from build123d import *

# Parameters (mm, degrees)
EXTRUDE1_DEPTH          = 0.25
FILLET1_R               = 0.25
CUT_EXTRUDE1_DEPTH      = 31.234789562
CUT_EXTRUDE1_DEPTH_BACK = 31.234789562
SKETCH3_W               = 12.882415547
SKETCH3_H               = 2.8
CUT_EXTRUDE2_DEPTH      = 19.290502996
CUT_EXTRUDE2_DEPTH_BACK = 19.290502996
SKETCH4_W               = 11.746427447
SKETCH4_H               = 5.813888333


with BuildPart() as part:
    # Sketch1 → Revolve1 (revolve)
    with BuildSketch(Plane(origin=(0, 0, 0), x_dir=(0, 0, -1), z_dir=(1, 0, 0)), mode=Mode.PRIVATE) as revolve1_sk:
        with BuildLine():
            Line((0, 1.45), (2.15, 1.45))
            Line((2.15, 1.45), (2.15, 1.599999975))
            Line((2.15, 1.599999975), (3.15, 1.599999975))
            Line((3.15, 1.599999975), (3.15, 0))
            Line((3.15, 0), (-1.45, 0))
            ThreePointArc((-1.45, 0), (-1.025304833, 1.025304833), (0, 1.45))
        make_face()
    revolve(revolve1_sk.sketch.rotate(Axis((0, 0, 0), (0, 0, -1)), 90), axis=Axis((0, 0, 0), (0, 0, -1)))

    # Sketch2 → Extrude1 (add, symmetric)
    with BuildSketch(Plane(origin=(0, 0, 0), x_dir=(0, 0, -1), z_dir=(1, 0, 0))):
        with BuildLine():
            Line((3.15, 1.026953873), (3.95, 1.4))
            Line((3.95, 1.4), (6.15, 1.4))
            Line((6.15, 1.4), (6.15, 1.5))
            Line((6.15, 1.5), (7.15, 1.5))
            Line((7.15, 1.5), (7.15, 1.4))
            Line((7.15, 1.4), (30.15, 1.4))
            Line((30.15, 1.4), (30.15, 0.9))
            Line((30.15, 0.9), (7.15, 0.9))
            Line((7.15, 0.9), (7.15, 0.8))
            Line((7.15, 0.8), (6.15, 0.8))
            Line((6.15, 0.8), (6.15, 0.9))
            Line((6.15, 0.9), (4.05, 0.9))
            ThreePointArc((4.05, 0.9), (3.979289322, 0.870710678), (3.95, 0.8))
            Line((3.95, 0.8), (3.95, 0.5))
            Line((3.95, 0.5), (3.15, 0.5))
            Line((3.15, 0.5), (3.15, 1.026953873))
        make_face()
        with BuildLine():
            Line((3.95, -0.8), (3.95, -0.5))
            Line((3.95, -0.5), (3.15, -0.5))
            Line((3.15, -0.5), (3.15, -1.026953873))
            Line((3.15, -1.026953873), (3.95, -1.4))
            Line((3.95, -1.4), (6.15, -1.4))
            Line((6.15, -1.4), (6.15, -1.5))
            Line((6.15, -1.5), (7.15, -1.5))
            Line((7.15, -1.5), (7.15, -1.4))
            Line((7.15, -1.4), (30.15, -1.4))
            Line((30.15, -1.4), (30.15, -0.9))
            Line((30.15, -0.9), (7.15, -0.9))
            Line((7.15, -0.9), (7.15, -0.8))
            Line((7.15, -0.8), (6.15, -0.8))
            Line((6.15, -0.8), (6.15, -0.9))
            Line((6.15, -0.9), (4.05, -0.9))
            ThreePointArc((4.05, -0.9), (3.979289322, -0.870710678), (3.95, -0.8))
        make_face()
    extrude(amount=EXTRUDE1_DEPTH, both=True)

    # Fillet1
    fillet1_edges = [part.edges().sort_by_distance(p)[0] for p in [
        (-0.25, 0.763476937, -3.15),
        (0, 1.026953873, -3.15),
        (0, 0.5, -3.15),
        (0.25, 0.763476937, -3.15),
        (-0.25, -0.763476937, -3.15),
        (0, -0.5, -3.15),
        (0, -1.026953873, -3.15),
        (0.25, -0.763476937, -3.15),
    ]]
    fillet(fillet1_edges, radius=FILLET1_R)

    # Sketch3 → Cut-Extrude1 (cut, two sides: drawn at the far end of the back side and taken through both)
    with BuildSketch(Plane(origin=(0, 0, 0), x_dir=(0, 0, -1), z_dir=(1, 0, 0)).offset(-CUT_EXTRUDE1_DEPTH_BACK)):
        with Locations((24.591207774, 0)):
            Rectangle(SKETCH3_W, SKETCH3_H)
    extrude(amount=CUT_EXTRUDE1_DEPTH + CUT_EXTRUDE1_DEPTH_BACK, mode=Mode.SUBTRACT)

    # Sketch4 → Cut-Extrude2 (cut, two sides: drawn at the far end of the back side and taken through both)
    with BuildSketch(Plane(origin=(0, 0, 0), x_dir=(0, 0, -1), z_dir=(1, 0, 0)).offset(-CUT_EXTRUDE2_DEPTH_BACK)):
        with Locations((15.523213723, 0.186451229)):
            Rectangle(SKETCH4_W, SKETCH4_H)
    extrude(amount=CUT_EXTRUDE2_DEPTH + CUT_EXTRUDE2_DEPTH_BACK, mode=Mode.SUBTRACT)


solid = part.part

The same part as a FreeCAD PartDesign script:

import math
import FreeCAD as App
import Part
import Sketcher
from FreeCAD import Vector
Q = App.Units.Quantity


def edges_at(feature, points):
    """Names of the edges that pass closest to the given points."""
    edges = feature.Shape.Edges
    near = lambda p: min(range(len(edges)), key=lambda i: edges[i].distToShape(Part.Vertex(*p))[0])
    return sorted({f"Edge{near(p) + 1}" for p in points})


def add_polygon(sketch, points):
    """Adds a closed chain of lines whose ends are joined by coincident constraints."""
    first, n = sketch.GeometryCount, len(points)
    for a, b in zip(points, points[1:] + points[:1]):
        sketch.addGeometry(Part.LineSegment(App.Vector(*a, 0), App.Vector(*b, 0)), False)
    for i in range(n):
        sketch.addConstraint(Sketcher.Constraint("Coincident", first + i, 2, first + (i + 1) % n, 1))

doc = App.newDocument("Part")
body = doc.addObject("PartDesign::Body", "Body")

# Sketch on YZ plane
sketch1 = body.newObject("Sketcher::SketchObject", "Sketch")
sketch1.AttachmentSupport = (doc.getObject("YZ_Plane"), [""])
sketch1.MapMode = "FlatFace"
sketch1.addGeometry([
    Part.LineSegment(Vector(1.45, -2.15, 0), Vector(1.45, 0, 0)),  # 0
    Part.ArcOfCircle(Part.Circle(Vector(0, 0, 0), Vector(0, 0, 1), 1.45), math.radians(0), math.radians(90)),  # 1
    Part.LineSegment(Vector(0, 1.45, 0), Vector(0, -3.15, 0)),  # 2
    Part.LineSegment(Vector(0, -3.15, 0), Vector(1.6, -3.15, 0)),  # 3
    Part.LineSegment(Vector(1.6, -3.15, 0), Vector(1.6, -2.15, 0)),  # 4
    Part.LineSegment(Vector(1.6, -2.15, 0), Vector(1.45, -2.15, 0)),  # 5
], False)
sketch1.addConstraint([
    Sketcher.Constraint("Tangent", 0, 2, 1, 1),
    Sketcher.Constraint("Coincident", 1, 2, 2, 1),
    Sketcher.Constraint("Coincident", 2, 2, 3, 1),
    Sketcher.Constraint("Coincident", 3, 2, 4, 1),
    Sketcher.Constraint("Coincident", 4, 2, 5, 1),
    Sketcher.Constraint("Coincident", 5, 2, 0, 1),
    Sketcher.Constraint("Vertical", 0),
    Sketcher.Constraint("Vertical", 2),
    Sketcher.Constraint("Horizontal", 3),
    Sketcher.Constraint("Vertical", 4),
    Sketcher.Constraint("Horizontal", 5),
    Sketcher.Constraint("Coincident", 1, 3, -1, 1),
    Sketcher.Constraint("PointOnObject", 1, 2, -2),
    Sketcher.Constraint("DistanceY", 4, 1, 4, 2, Q("1 mm")),
    Sketcher.Constraint("Radius", 1, Q("1.45 mm")),
    Sketcher.Constraint("DistanceX", 3, 1, 3, 2, Q("1.6 mm")),
    Sketcher.Constraint("DistanceY", 2, 2, 2, 1, Q("4.6 mm")),
])
revolution = body.newObject("PartDesign::Revolution", "Revolution")
revolution.Profile = sketch1
revolution.ReferenceAxis = (sketch1, ["V_Axis"])
revolution.Angle = 360

# Sketch on YZ plane
sketch2 = body.newObject("Sketcher::SketchObject", "Sketch001")
sketch2.AttachmentSupport = (doc.getObject("YZ_Plane"), [""])
sketch2.MapMode = "FlatFace"
sketch2.addGeometry([
    Part.LineSegment(Vector(1.4, -3.95, 0), Vector(1.03, -3.15, 0)),  # 0
    Part.LineSegment(Vector(1.03, -3.15, 0), Vector(0.5, -3.15, 0)),  # 1
    Part.LineSegment(Vector(0.5, -3.15, 0), Vector(0.5, -3.95, 0)),  # 2
    Part.LineSegment(Vector(0.5, -3.95, 0), Vector(0.8, -3.95, 0)),  # 3
    Part.ArcOfCircle(Part.Circle(Vector(0.8, -4.05, 0), Vector(0, 0, 1), 0.1), math.radians(0), math.radians(90)),  # 4
    Part.LineSegment(Vector(0.9, -4.05, 0), Vector(0.9, -6.15, 0)),  # 5
    Part.LineSegment(Vector(0.9, -6.15, 0), Vector(0.8, -6.15, 0)),  # 6
    Part.LineSegment(Vector(0.8, -6.15, 0), Vector(0.8, -7.15, 0)),  # 7
    Part.LineSegment(Vector(0.8, -7.15, 0), Vector(0.9, -7.15, 0)),  # 8
    Part.LineSegment(Vector(0.9, -7.15, 0), Vector(0.9, -30.15, 0)),  # 9
    Part.LineSegment(Vector(0.9, -30.15, 0), Vector(1.4, -30.15, 0)),  # 10
    Part.LineSegment(Vector(1.4, -30.15, 0), Vector(1.4, -7.15, 0)),  # 11
    Part.LineSegment(Vector(1.4, -7.15, 0), Vector(1.5, -7.15, 0)),  # 12
    Part.LineSegment(Vector(1.5, -7.15, 0), Vector(1.5, -6.15, 0)),  # 13
    Part.LineSegment(Vector(1.5, -6.15, 0), Vector(1.4, -6.15, 0)),  # 14
    Part.LineSegment(Vector(1.4, -6.15, 0), Vector(1.4, -3.95, 0)),  # 15
    Part.LineSegment(Vector(-0.8, -3.95, 0), Vector(-0.5, -3.95, 0)),  # 16
    Part.LineSegment(Vector(-0.5, -3.95, 0), Vector(-0.5, -3.15, 0)),  # 17
    Part.LineSegment(Vector(-0.5, -3.15, 0), Vector(-1.03, -3.15, 0)),  # 18
    Part.LineSegment(Vector(-1.03, -3.15, 0), Vector(-1.4, -3.95, 0)),  # 19
    Part.LineSegment(Vector(-1.4, -3.95, 0), Vector(-1.4, -6.15, 0)),  # 20
    Part.LineSegment(Vector(-1.4, -6.15, 0), Vector(-1.5, -6.15, 0)),  # 21
    Part.LineSegment(Vector(-1.5, -6.15, 0), Vector(-1.5, -7.15, 0)),  # 22
    Part.LineSegment(Vector(-1.5, -7.15, 0), Vector(-1.4, -7.15, 0)),  # 23
    Part.LineSegment(Vector(-1.4, -7.15, 0), Vector(-1.4, -30.15, 0)),  # 24
    Part.LineSegment(Vector(-1.4, -30.15, 0), Vector(-0.9, -30.15, 0)),  # 25
    Part.LineSegment(Vector(-0.9, -30.15, 0), Vector(-0.9, -7.15, 0)),  # 26
    Part.LineSegment(Vector(-0.9, -7.15, 0), Vector(-0.8, -7.15, 0)),  # 27
    Part.LineSegment(Vector(-0.8, -7.15, 0), Vector(-0.8, -6.15, 0)),  # 28
    Part.LineSegment(Vector(-0.8, -6.15, 0), Vector(-0.9, -6.15, 0)),  # 29
    Part.LineSegment(Vector(-0.9, -6.15, 0), Vector(-0.9, -4.05, 0)),  # 30
    Part.ArcOfCircle(Part.Circle(Vector(-0.8, -4.05, 0), Vector(0, 0, 1), 0.1), math.radians(90), math.radians(180)),  # 31
], False)
sketch2.addConstraint([
    Sketcher.Constraint("Coincident", 0, 2, 1, 1),
    Sketcher.Constraint("Coincident", 1, 2, 2, 1),
    Sketcher.Constraint("Coincident", 2, 2, 3, 1),
    Sketcher.Constraint("Tangent", 3, 2, 4, 2),
    Sketcher.Constraint("Tangent", 4, 1, 5, 1),
    Sketcher.Constraint("Coincident", 5, 2, 6, 1),
    Sketcher.Constraint("Coincident", 6, 2, 7, 1),
    Sketcher.Constraint("Coincident", 7, 2, 8, 1),
    Sketcher.Constraint("Coincident", 8, 2, 9, 1),
    Sketcher.Constraint("Coincident", 9, 2, 10, 1),
    Sketcher.Constraint("Coincident", 10, 2, 11, 1),
    Sketcher.Constraint("Coincident", 11, 2, 12, 1),
    Sketcher.Constraint("Coincident", 12, 2, 13, 1),
    Sketcher.Constraint("Coincident", 13, 2, 14, 1),
    Sketcher.Constraint("Coincident", 14, 2, 15, 1),
    Sketcher.Constraint("Coincident", 15, 2, 0, 1),
    Sketcher.Constraint("Coincident", 16, 2, 17, 1),
    Sketcher.Constraint("Coincident", 17, 2, 18, 1),
    Sketcher.Constraint("Coincident", 18, 2, 19, 1),
    Sketcher.Constraint("Coincident", 19, 2, 20, 1),
    Sketcher.Constraint("Coincident", 20, 2, 21, 1),
    Sketcher.Constraint("Coincident", 21, 2, 22, 1),
    Sketcher.Constraint("Coincident", 22, 2, 23, 1),
    Sketcher.Constraint("Coincident", 23, 2, 24, 1),
    Sketcher.Constraint("Coincident", 24, 2, 25, 1),
    Sketcher.Constraint("Coincident", 25, 2, 26, 1),
    Sketcher.Constraint("Coincident", 26, 2, 27, 1),
    Sketcher.Constraint("Coincident", 27, 2, 28, 1),
    Sketcher.Constraint("Coincident", 28, 2, 29, 1),
    Sketcher.Constraint("Coincident", 29, 2, 30, 1),
    Sketcher.Constraint("Tangent", 30, 2, 31, 2),
    Sketcher.Constraint("Tangent", 31, 1, 16, 1),
    Sketcher.Constraint("Horizontal", 1),
    Sketcher.Constraint("Vertical", 2),
    Sketcher.Constraint("Horizontal", 3),
    Sketcher.Constraint("Vertical", 5),
    Sketcher.Constraint("Horizontal", 6),
    Sketcher.Constraint("Vertical", 7),
    Sketcher.Constraint("Horizontal", 8),
    Sketcher.Constraint("Vertical", 9),
    Sketcher.Constraint("Horizontal", 10),
    Sketcher.Constraint("Vertical", 11),
    Sketcher.Constraint("Horizontal", 12),
    Sketcher.Constraint("Vertical", 13),
    Sketcher.Constraint("Horizontal", 14),
    Sketcher.Constraint("Vertical", 15),
    Sketcher.Constraint("Horizontal", 16),
    Sketcher.Constraint("Vertical", 17),
    Sketcher.Constraint("Horizontal", 18),
    Sketcher.Constraint("Vertical", 20),
    Sketcher.Constraint("Horizontal", 21),
    Sketcher.Constraint("Vertical", 22),
    Sketcher.Constraint("Horizontal", 23),
    Sketcher.Constraint("Vertical", 24),
    Sketcher.Constraint("Horizontal", 25),
    Sketcher.Constraint("Vertical", 26),
    Sketcher.Constraint("Horizontal", 27),
    Sketcher.Constraint("Vertical", 28),
    Sketcher.Constraint("Horizontal", 29),
    Sketcher.Constraint("Vertical", 30),
    Sketcher.Constraint("Equal", 4, 31),
    Sketcher.Constraint("Symmetric", 4, 3, 31, 3, -2),
    Sketcher.Constraint("Symmetric", 1, 2, 17, 2, -2),
    Sketcher.Constraint("Symmetric", 15, 2, 19, 2, -2),
    Sketcher.Constraint("Symmetric", 13, 2, 21, 2, -2),
    Sketcher.Constraint("Symmetric", 11, 2, 23, 2, -2),
    Sketcher.Constraint("Symmetric", 9, 2, 25, 2, -2),
    Sketcher.Constraint("Symmetric", 7, 2, 27, 2, -2),
    Sketcher.Constraint("Horizontal", 8, 2, 11, 2),
    Sketcher.Constraint("Horizontal", 6, 2, 13, 2),
    Sketcher.Constraint("Horizontal", 3, 2, 15, 2),
    Sketcher.Constraint("Horizontal", 21, 2, 28, 2),
    Sketcher.Constraint("Vertical", 3, 2, 6, 2),
    Sketcher.Constraint("Vertical", 5, 2, 8, 2),
    Sketcher.Constraint("Vertical", 11, 2, 14, 2),
    Sketcher.Constraint("Equal", 8, 12),
    Sketcher.Constraint("Equal", 1, 18),
    Sketcher.Constraint("Radius", 4, Q("0.1 mm")),
    Sketcher.Constraint("DistanceY", 7, 2, 7, 1, Q("1 mm")),
    Sketcher.Constraint("DistanceY", 9, 2, 9, 1, Q("23 mm")),
    Sketcher.Constraint("Angle", 0, Q("115 deg")),
    Sketcher.Constraint("DistanceX", 3, 1, 3, 2, Q("0.3 mm")),
    Sketcher.Constraint("DistanceX", 10, 1, 10, 2, Q("0.5 mm")),
    Sketcher.Constraint("DistanceY", 2, 2, 2, 1, Q("0.8 mm")),
    Sketcher.Constraint("DistanceY", 5, 2, 5, 1, Q("2.1 mm")),
    Sketcher.Constraint("DistanceX", 16, 2, 2, 2, Q("1 mm")),
    Sketcher.Constraint("DistanceY", 4, 3, -1, 1, Q("4.05 mm")),
])
pad1 = body.newObject("PartDesign::Pad", "Pad")
pad1.Profile = sketch2
pad1.Length = 0.5
pad1.Midplane = True
doc.recompute()

fillet = body.newObject("PartDesign::Fillet", "Fillet")
fillet.Base = (pad1, edges_at(pad1, [
    (-0.25, 0.763, -3.15),
    (0, 1.027, -3.15),
    (0, 0.5, -3.15),
    (0.25, 0.763, -3.15),
    (-0.25, -0.763, -3.15),
    (0, -0.5, -3.15),
    (0, -1.027, -3.15),
    (0.25, -0.763, -3.15),
]))
fillet.Radius = 0.25

# Sketch on YZ plane
sketch3 = body.newObject("Sketcher::SketchObject", "Sketch002")
sketch3.AttachmentSupport = (doc.getObject("YZ_Plane"), [""])
sketch3.MapMode = "FlatFace"
add_polygon(sketch3, [(1.4, -18.2), (-1.4, -18.2), (-1.4, -31), (1.4, -31)])  # lines 0-3
sketch3.addConstraint([
    Sketcher.Constraint("Horizontal", 0),
    Sketcher.Constraint("Vertical", 1),
    Sketcher.Constraint("Horizontal", 2),
    Sketcher.Constraint("Vertical", 3),
    Sketcher.Constraint("DistanceX", 0, 2, 0, 1, Q("2.8 mm")),
    Sketcher.Constraint("DistanceX", 0, 2, -1, 1, Q("1.4 mm")),
    Sketcher.Constraint("DistanceY", 0, 2, -1, 1, Q("18.15 mm")),
    Sketcher.Constraint("DistanceY", 1, 2, 1, 1, Q("12.882416 mm")),
])
pocket1 = body.newObject("PartDesign::Pocket", "Pocket")
pocket1.Profile = sketch3
pocket1.Type = "ThroughAll"
pocket1.Midplane = True

# Sketch on YZ plane
sketch4 = body.newObject("Sketcher::SketchObject", "Sketch003")
sketch4.AttachmentSupport = (doc.getObject("YZ_Plane"), [""])
sketch4.MapMode = "FlatFace"
add_polygon(sketch4, [(3, -10), (-3, -10), (-3, -21), (3, -21)])  # lines 0-3
sketch4.addConstraint([
    Sketcher.Constraint("Horizontal", 0),
    Sketcher.Constraint("Vertical", 1),
    Sketcher.Constraint("Horizontal", 2),
    Sketcher.Constraint("Vertical", 3),
    Sketcher.Constraint("DistanceY", 0, 2, -1, 1, Q("9.65 mm")),
    Sketcher.Constraint("DistanceX", 0, 2, 0, 1, Q("5.813888 mm")),
    Sketcher.Constraint("DistanceY", 1, 2, 1, 1, Q("11.746427 mm")),
    Sketcher.Constraint("DistanceX", 0, 2, -1, 1, Q("2.720493 mm")),
])
pocket2 = body.newObject("PartDesign::Pocket", "Pocket001")
pocket2.Profile = sketch4
pocket2.Type = "ThroughAll"
pocket2.Midplane = True

doc.recompute()
